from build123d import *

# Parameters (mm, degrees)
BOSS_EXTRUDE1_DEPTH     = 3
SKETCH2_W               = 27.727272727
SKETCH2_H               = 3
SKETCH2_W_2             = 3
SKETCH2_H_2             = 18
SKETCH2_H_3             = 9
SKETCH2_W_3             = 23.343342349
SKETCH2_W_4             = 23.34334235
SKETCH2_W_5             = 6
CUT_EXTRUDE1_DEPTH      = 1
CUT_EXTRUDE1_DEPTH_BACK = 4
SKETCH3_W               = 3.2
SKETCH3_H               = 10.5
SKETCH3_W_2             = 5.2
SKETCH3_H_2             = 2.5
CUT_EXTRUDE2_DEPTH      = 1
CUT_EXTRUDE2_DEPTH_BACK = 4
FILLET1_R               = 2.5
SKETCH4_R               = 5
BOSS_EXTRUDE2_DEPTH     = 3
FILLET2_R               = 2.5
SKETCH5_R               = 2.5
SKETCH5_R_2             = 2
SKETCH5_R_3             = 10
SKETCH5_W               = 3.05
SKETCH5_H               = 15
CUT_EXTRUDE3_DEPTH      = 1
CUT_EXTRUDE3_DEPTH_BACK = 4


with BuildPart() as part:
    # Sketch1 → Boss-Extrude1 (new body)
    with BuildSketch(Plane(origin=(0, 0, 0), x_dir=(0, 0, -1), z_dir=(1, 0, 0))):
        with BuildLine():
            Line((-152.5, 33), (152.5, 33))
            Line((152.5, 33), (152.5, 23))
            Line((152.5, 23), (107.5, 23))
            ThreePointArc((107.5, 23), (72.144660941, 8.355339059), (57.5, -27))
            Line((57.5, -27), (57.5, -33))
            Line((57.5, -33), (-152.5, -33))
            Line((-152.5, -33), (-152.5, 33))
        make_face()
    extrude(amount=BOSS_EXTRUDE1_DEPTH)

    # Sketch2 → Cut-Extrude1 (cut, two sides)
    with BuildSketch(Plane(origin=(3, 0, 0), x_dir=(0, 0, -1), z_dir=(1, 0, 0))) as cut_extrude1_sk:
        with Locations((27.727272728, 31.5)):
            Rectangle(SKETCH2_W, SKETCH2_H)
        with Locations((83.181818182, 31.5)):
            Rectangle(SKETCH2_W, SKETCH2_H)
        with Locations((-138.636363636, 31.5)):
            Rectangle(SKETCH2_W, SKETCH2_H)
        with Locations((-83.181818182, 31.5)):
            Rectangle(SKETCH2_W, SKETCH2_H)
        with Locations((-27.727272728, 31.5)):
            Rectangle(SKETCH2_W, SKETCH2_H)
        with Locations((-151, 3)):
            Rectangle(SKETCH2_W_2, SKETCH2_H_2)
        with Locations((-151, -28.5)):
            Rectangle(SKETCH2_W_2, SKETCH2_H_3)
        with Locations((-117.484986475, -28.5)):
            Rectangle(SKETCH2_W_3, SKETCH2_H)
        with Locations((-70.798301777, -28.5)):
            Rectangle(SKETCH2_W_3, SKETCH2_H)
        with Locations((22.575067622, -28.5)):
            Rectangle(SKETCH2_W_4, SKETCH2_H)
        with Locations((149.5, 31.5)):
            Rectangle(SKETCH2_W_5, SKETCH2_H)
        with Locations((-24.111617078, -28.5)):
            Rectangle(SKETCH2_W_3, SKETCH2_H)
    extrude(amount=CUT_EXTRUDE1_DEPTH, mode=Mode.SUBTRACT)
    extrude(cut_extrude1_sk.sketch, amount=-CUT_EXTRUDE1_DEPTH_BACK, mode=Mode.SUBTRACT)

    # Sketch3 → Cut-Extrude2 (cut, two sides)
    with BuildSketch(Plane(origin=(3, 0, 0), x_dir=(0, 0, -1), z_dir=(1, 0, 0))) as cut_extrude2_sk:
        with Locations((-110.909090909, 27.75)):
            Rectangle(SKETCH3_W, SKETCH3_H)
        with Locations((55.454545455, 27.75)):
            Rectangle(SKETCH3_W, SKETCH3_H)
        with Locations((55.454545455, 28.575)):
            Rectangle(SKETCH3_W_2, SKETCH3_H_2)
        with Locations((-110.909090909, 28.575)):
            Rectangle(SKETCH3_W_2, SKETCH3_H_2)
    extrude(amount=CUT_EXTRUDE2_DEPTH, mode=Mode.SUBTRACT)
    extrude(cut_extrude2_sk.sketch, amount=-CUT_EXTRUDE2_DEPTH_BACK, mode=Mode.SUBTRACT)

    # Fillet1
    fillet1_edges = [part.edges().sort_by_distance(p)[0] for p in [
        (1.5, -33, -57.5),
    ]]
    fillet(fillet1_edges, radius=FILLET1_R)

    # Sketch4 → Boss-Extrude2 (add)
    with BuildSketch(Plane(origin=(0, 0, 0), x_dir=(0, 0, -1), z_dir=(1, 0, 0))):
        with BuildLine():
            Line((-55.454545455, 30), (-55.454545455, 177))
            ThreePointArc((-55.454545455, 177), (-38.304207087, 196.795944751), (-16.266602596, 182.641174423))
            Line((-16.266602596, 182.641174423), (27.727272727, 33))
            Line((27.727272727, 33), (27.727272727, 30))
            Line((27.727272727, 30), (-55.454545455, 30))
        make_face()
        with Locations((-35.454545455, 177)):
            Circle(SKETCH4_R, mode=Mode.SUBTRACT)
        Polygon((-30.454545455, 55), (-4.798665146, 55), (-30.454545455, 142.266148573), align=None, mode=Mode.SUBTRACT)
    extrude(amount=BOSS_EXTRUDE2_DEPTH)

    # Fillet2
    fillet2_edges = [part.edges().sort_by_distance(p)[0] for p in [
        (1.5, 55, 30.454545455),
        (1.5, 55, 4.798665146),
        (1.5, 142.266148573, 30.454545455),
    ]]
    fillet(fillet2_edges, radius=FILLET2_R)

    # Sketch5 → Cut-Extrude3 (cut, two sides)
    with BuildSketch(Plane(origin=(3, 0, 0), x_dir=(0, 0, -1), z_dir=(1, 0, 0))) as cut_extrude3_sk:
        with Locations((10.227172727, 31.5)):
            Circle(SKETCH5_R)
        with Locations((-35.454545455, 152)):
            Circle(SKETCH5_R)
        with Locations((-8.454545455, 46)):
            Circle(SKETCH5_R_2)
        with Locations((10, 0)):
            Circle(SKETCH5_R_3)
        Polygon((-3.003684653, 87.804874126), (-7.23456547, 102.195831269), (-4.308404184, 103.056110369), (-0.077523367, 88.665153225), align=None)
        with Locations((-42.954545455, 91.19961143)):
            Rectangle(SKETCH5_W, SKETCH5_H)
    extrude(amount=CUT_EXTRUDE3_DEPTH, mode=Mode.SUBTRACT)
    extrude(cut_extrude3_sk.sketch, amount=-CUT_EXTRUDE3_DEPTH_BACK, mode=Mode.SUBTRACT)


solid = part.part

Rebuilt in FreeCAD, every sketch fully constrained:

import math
import FreeCAD as App
import Part
import Sketcher

V = App.Vector


def edges_at(feature, points):
    """Names of the edges that pass closest to the given points."""
    edges = feature.Shape.Edges
    near = lambda p: min(range(len(edges)), key=lambda i: edges[i].distToShape(Part.Vertex(*p))[0])
    return sorted({f"Edge{near(p) + 1}" for p in points})


def add_polygon(sketch, points):
    """Adds a closed chain of lines whose ends are joined by coincident constraints."""
    first, n = sketch.GeometryCount, len(points)
    for a, b in zip(points, points[1:] + points[:1]):
        sketch.addGeometry(Part.LineSegment(App.Vector(*a, 0), App.Vector(*b, 0)), False)
    for i in range(n):
        sketch.addConstraint(Sketcher.Constraint("Coincident", first + i, 2, first + (i + 1) % n, 1))

doc = App.newDocument("Part")
body = doc.addObject("PartDesign::Body", "Body")

# Sketch on YZ plane
sketch1 = body.newObject("Sketcher::SketchObject", "Sketch")
sketch1.AttachmentSupport = (doc.getObject("YZ_Plane"), [""])
sketch1.MapMode = "FlatFace"
sketch1.addGeometry([
    Part.LineSegment(V(33, -152, 0), V(33, 152, 0)),  # 0
    Part.LineSegment(V(33, 152, 0), V(-33, 152, 0)),  # 1
    Part.LineSegment(V(-33, 152, 0), V(-33, -58, 0)),  # 2
    Part.LineSegment(V(-33, -58, 0), V(-27, -58, 0)),  # 3
    Part.ArcOfCircle(Part.Circle(V(-27, -108, 0), V(0, 0, 1), 50), math.radians(0), math.radians(90)),  # 4
    Part.LineSegment(V(23, -108, 0), V(23, -152, 0)),  # 5
    Part.LineSegment(V(23, -152, 0), V(33, -152, 0)),  # 6
], False)
sketch1.addConstraint([
    Sketcher.Constraint("Coincident", 0, 2, 1, 1),
    Sketcher.Constraint("Coincident", 1, 2, 2, 1),
    Sketcher.Constraint("Coincident", 2, 2, 3, 1),
    Sketcher.Constraint("Tangent", 3, 2, 4, 2),
    Sketcher.Constraint("Tangent", 4, 1, 5, 1),
    Sketcher.Constraint("Coincident", 5, 2, 6, 1),
    Sketcher.Constraint("Coincident", 6, 2, 0, 1),
    Sketcher.Constraint("Vertical", 0),
    Sketcher.Constraint("Horizontal", 1),
    Sketcher.Constraint("Vertical", 2),
    Sketcher.Constraint("Horizontal", 3),
    Sketcher.Constraint("Vertical", 5),
    Sketcher.Constraint("Horizontal", 6),
    Sketcher.Constraint("Symmetric", 1, 2, 6, 2, -1, 1),
    Sketcher.Constraint("Radius", 4, 50.0),
    Sketcher.Constraint("DistanceX", 1, 2, 1, 1, 66.0),
    Sketcher.Constraint("DistanceX", 3, 1, 3, 2, 6.0),
    Sketcher.Constraint("DistanceY", 0, 1, 0, 2, 305.0),
    Sketcher.Constraint("DistanceY", 2, 2, 2, 1, 210.0),
])
pad1 = body.newObject("PartDesign::Pad", "Pad")
pad1.Profile = sketch1
pad1.Length = 3

# Sketch on YZ plane
sketch2 = body.newObject("Sketcher::SketchObject", "Sketch001")
sketch2.AttachmentSupport = (doc.getObject("YZ_Plane"), [""])
sketch2.MapMode = "FlatFace"
sketch2.AttachmentOffset = App.Placement(V(0, 0, 3), App.Rotation())
add_polygon(sketch2, [(33, -13.9), (30, -13.9), (30, -41.6), (33, -41.6)])  # lines 0-3
add_polygon(sketch2, [(33, -69.3), (30, -69.3), (30, -97), (33, -97)])  # lines 4-7
add_polygon(sketch2, [(33, 152.5), (30, 152.5), (30, 124.8), (33, 124.8)])  # lines 8-11
add_polygon(sketch2, [(33, 97), (30, 97), (30, 69.3), (33, 69.3)])  # lines 12-15
add_polygon(sketch2, [(33, 41.6), (30, 41.6), (30, 13.9), (33, 13.9)])  # lines 16-19
add_polygon(sketch2, [(12, 152.5), (-6, 152.5), (-6, 149.5), (12, 149.5)])  # lines 20-23
add_polygon(sketch2, [(-24, 152.5), (-33, 152.5), (-33, 149.5), (-24, 149.5)])  # lines 24-27
add_polygon(sketch2, [(-27, 129.2), (-30, 129.2), (-30, 105.8), (-27, 105.8)])  # lines 28-31
add_polygon(sketch2, [(-27, 82.5), (-30, 82.5), (-30, 59.1), (-27, 59.1)])  # lines 32-35
add_polygon(sketch2, [(-27, -10.9), (-30, -10.9), (-30, -34.2), (-27, -34.2)])  # lines 36-39
add_polygon(sketch2, [(33, -146.5), (30, -146.5), (30, -152.5), (33, -152.5)])  # lines 40-43
add_polygon(sketch2, [(-27, 35.8), (-30, 35.8), (-30, 12.4), (-27, 12.4)])  # lines 44-47
sketch2.addConstraint([
    Sketcher.Constraint("Horizontal", 0),
    Sketcher.Constraint("Vertical", 1),
    Sketcher.Constraint("Horizontal", 2),
    Sketcher.Constraint("Vertical", 3),
    Sketcher.Constraint("Horizontal", 4),
    Sketcher.Constraint("Vertical", 5),
    Sketcher.Constraint("Horizontal", 6),
    Sketcher.Constraint("Vertical", 7),
    Sketcher.Constraint("Horizontal", 8),
    Sketcher.Constraint("Vertical", 9),
    Sketcher.Constraint("Horizontal", 10),
    Sketcher.Constraint("Vertical", 11),
    Sketcher.Constraint("Horizontal", 12),
    Sketcher.Constraint("Vertical", 13),
    Sketcher.Constraint("Horizontal", 14),
    Sketcher.Constraint("Vertical", 15),
    Sketcher.Constraint("Horizontal", 16),
    Sketcher.Constraint("Vertical", 17),
    Sketcher.Constraint("Horizontal", 18),
    Sketcher.Constraint("Vertical", 19),
    Sketcher.Constraint("Horizontal", 20),
    Sketcher.Constraint("Vertical", 21),
    Sketcher.Constraint("Horizontal", 22),
    Sketcher.Constraint("Vertical", 23),
    Sketcher.Constraint("Horizontal", 24),
    Sketcher.Constraint("Vertical", 25),
    Sketcher.Constraint("Horizontal", 26),
    Sketcher.Constraint("Vertical", 27),
    Sketcher.Constraint("Horizontal", 28),
    Sketcher.Constraint("Vertical", 29),
    Sketcher.Constraint("Horizontal", 30),
    Sketcher.Constraint("Vertical", 31),
    Sketcher.Constraint("Horizontal", 32),
    Sketcher.Constraint("Vertical", 33),
    Sketcher.Constraint("Horizontal", 34),
    Sketcher.Constraint("Vertical", 35),
    Sketcher.Constraint("Horizontal", 36),
    Sketcher.Constraint("Vertical", 37),
    Sketcher.Constraint("Horizontal", 38),
    Sketcher.Constraint("Vertical", 39),
    Sketcher.Constraint("Horizontal", 40),
    Sketcher.Constraint("Vertical", 41),
    Sketcher.Constraint("Horizontal", 42),
    Sketcher.Constraint("Vertical", 43),
    Sketcher.Constraint("Horizontal", 44),
    Sketcher.Constraint("Vertical", 45),
    Sketcher.Constraint("Horizontal", 46),
    Sketcher.Constraint("Vertical", 47),
    Sketcher.Constraint("Symmetric", 24, 2, 42, 2, -1, 1),
    Sketcher.Constraint("Symmetric", 11, 2, 24, 2, -2),
    Sketcher.Constraint("Symmetric", 5, 2, 12, 2, -1),
    Sketcher.Constraint("Symmetric", 7, 2, 14, 2, -1),
    Sketcher.Constraint("Symmetric", 1, 2, 16, 2, -1),
    Sketcher.Constraint("Symmetric", 3, 2, 18, 2, -1),
    Sketcher.Constraint("Horizontal", 11, 2, 20, 2),
    Sketcher.Constraint("Horizontal", 22, 2, 25, 2),
    Sketcher.Constraint("Vertical", 1, 2, 4, 2),
    Sketcher.Constraint("Vertical", 3, 2, 6, 2),
    Sketcher.Constraint("Vertical", 5, 2, 8, 2),
    Sketcher.Constraint("Vertical", 7, 2, 10, 2),
    Sketcher.Constraint("Vertical", 29, 2, 32, 2),
    Sketcher.Constraint("Vertical", 31, 2, 34, 2),
    Sketcher.Constraint("Vertical", 33, 2, 36, 2),
    Sketcher.Constraint("Vertical", 35, 2, 38, 2),
    Sketcher.Constraint("Vertical", 17, 2, 40, 2),
    Sketcher.Constraint("Vertical", 37, 2, 44, 2),
    Sketcher.Constraint("Vertical", 39, 2, 46, 2),
    Sketcher.Constraint("Equal", 18, 28),
    Sketcher.Constraint("Equal", 3, 5),
    Sketcher.Constraint("Equal", 7, 9),
    Sketcher.Constraint("Equal", 46, 21),
    Sketcher.Constraint("Equal", 31, 33),
    Sketcher.Constraint("Equal", 35, 37),
    Sketcher.Constraint("Equal", 39, 45),
    Sketcher.Constraint("DistanceX", 0, 2, 0, 1, 3.0),
    Sketcher.Constraint("DistanceX", 20, 2, 20, 1, 18.0),
    Sketcher.Constraint("DistanceX", 24, 2, 24, 1, 9.0),
    Sketcher.Constraint("DistanceY", 41, 2, 41, 1, 6.0),
    Sketcher.Constraint("DistanceX", -1, 1, 0, 2, 30.0),
    Sketcher.Constraint("DistanceX", 20, 2, -1, 1, 6.0),
    Sketcher.Constraint("DistanceX", 28, 2, -1, 1, 30.0),
    Sketcher.Constraint("DistanceY", -1, 1, 8, 2, 152.5),
    Sketcher.Constraint("DistanceY", 1, 2, 1, 1, 27.727273),
    Sketcher.Constraint("DistanceY", 29, 2, 29, 1, 23.343342),
    Sketcher.Constraint("DistanceY", 1, 2, -1, 1, 41.590909),
    Sketcher.Constraint("DistanceY", 4, 2, -1, 1, 69.318182),
    Sketcher.Constraint("DistanceY", -1, 1, 33, 2, 59.126631),
    Sketcher.Constraint("DistanceY", 37, 2, -1, 1, 34.246739),
    Sketcher.Constraint("DistanceY", -1, 1, 44, 2, 35.783288),
    Sketcher.Constraint("DistanceY", -1, 1, 28, 2, 129.156658),
])
pocket1 = body.newObject("PartDesign::Pocket", "Pocket")
pocket1.Profile = sketch2
pocket1.Type = "ThroughAll"
pocket1.Midplane = True

# Sketch on YZ plane
sketch3 = body.newObject("Sketcher::SketchObject", "Sketch002")
sketch3.AttachmentSupport = (doc.getObject("YZ_Plane"), [""])
sketch3.MapMode = "FlatFace"
sketch3.AttachmentOffset = App.Placement(V(0, 0, 3), App.Rotation())
add_polygon(sketch3, [(27.3, 112.5), (22.5, 112.5), (22.5, 109.3), (27.3, 109.3), (27.3, 108.3), (29.8, 108.3), (29.8, 109.3), (33, 109.3), (33, 112.5), (29.8, 112.5), (29.8, 113.5), (27.3, 113.5)])  # lines 0-11
add_polygon(sketch3, [(27.3, -53.9), (22.5, -53.9), (22.5, -57.1), (27.3, -57.1), (27.3, -58.1), (29.8, -58.1), (29.8, -57.1), (33, -57.1), (33, -53.9), (29.8, -53.9), (29.8, -52.9), (27.3, -52.9)])  # lines 12-23
sketch3.addConstraint([
    Sketcher.Constraint("Horizontal", 0),
    Sketcher.Constraint("Vertical", 1),
    Sketcher.Constraint("Horizontal", 2),
    Sketcher.Constraint("Vertical", 3),
    Sketcher.Constraint("Horizontal", 4),
    Sketcher.Constraint("Vertical", 5),
    Sketcher.Constraint("Horizontal", 6),
    Sketcher.Constraint("Vertical", 7),
    Sketcher.Constraint("Horizontal", 8),
    Sketcher.Constraint("Vertical", 9),
    Sketcher.Constraint("Horizontal", 10),
    Sketcher.Constraint("Vertical", 11),
    Sketcher.Constraint("Horizontal", 12),
    Sketcher.Constraint("Vertical", 13),
    Sketcher.Constraint("Horizontal", 14),
    Sketcher.Constraint("Vertical", 15),
    Sketcher.Constraint("Horizontal", 16),
    Sketcher.Constraint("Vertical", 17),
    Sketcher.Constraint("Horizontal", 18),
    Sketcher.Constraint("Vertical", 19),
    Sketcher.Constraint("Horizontal", 20),
    Sketcher.Constraint("Vertical", 21),
    Sketcher.Constraint("Horizontal", 22),
    Sketcher.Constraint("Vertical", 23),
    Sketcher.Constraint("Horizontal", 2, 2, 5, 2),
    Sketcher.Constraint("Horizontal", 0, 2, 7, 2),
    Sketcher.Constraint("Horizontal", 14, 2, 17, 2),
    Sketcher.Constraint("Horizontal", 12, 2, 19, 2),
    Sketcher.Constraint("Vertical", 5, 2, 8, 2),
    Sketcher.Constraint("Vertical", 3, 2, 10, 2),
    Sketcher.Constraint("Vertical", 1, 2, 12, 2),
    Sketcher.Constraint("Vertical", 11, 2, 14, 2),
    Sketcher.Constraint("Vertical", 9, 2, 16, 2),
    Sketcher.Constraint("Vertical", 7, 2, 18, 2),
    Sketcher.Constraint("Vertical", 17, 2, 20, 2),
    Sketcher.Constraint("Vertical", 15, 2, 22, 2),
    Sketcher.Constraint("Equal", 5, 9),
    Sketcher.Constraint("Equal", 7, 13),
    Sketcher.Constraint("Equal", 11, 15),
    Sketcher.Constraint("Equal", 17, 21),
    Sketcher.Constraint("DistanceY", 3, 2, 3, 1, 1.0),
    Sketcher.Constraint("DistanceX", 4, 1, 4, 2, 2.5),
    Sketcher.Constraint("DistanceY", 1, 2, 1, 1, 3.2),
    Sketcher.Constraint("DistanceX", -1, 1, 6, 2, 33.0),
    Sketcher.Constraint("DistanceX", -1, 1, 0, 2, 22.5),
    Sketcher.Constraint("DistanceX", 0, 2, 0, 1, 4.825),
    Sketcher.Constraint("DistanceY", -1, 1, 0, 2, 112.509091),
    Sketcher.Constraint("DistanceY", 12, 2, -1, 1, 53.854545),
])
pocket2 = body.newObject("PartDesign::Pocket", "Pocket001")
pocket2.Profile = sketch3
pocket2.Type = "ThroughAll"
pocket2.Midplane = True
doc.recompute()

fillet = body.newObject("PartDesign::Fillet", "Fillet")
fillet.Base = (pocket2, edges_at(pocket2, [(1.5, -33, -57.5)]))
fillet.Radius = 2.5

# Sketch on YZ plane
sketch4 = body.newObject("Sketcher::SketchObject", "Sketch003")
sketch4.AttachmentSupport = (doc.getObject("YZ_Plane"), [""])
sketch4.MapMode = "FlatFace"
sketch4.addGeometry(Part.LineSegment(V(177, 55.5, 0), V(30, 55.5, 0)), False)  # 0
sketch4.addGeometry(Part.LineSegment(V(30, 55.5, 0), V(30, -27.7, 0)), False)  # 1
sketch4.addGeometry(Part.LineSegment(V(30, -27.7, 0), V(33, -27.7, 0)), False)  # 2
sketch4.addGeometry(Part.LineSegment(V(33, -27.7, 0), V(182.6, 16.3, 0)), False)  # 3
sketch4.addGeometry(Part.ArcOfCircle(Part.Circle(V(177, 35.5, 0), V(0, 0, 1), 20), math.radians(-74), math.radians(90)), False)  # 4
add_polygon(sketch4, [(55, 30.5), (142.3, 30.5), (55, 4.8)])  # lines 5-7
sketch4.addGeometry(Part.Circle(V(177, 35.5, 0), V(0, 0, 1), 5), False)  # 8
sketch4.addConstraint([
    Sketcher.Constraint("Coincident", 0, 2, 1, 1),
    Sketcher.Constraint("Coincident", 1, 2, 2, 1),
    Sketcher.Constraint("Coincident", 2, 2, 3, 1),
    Sketcher.Constraint("Tangent", 3, 2, 4, 1),
    Sketcher.Constraint("Tangent", 4, 2, 0, 1),
    Sketcher.Constraint("Horizontal", 0),
    Sketcher.Constraint("Vertical", 1),
    Sketcher.Constraint("Horizontal", 2),
    Sketcher.Constraint("Horizontal", 5),
    Sketcher.Constraint("Vertical", 7),
    Sketcher.Constraint("Coincident", 8, 3, 4, 3),
    Sketcher.Constraint("Parallel", 3, 6),
    Sketcher.Constraint("Diameter", 8, 10.0),
    Sketcher.Constraint("Radius", 4, 20.0),
    Sketcher.Constraint("DistanceX", 0, 2, 0, 1, 147.0),
    Sketcher.Constraint("DistanceX", 2, 1, 2, 2, 3.0),
    Sketcher.Constraint("DistanceX", -1, 1, 4, 3, 177.0),
    Sketcher.Constraint("DistanceX", -1, 1, 6, 2, 55.0),
    Sketcher.Constraint("DistanceY", 5, 2, 4, 3, 5.0),
    Sketcher.Constraint("DistanceX", 5, 1, 5, 2, 87.266149),
    Sketcher.Constraint("DistanceY", 1, 2, 1, 1, 83.181818),
    Sketcher.Constraint("DistanceY", -1, 1, 4, 3, 35.454545),
])
pad2 = body.newObject("PartDesign::Pad", "Pad001")
pad2.Profile = sketch4
pad2.Length = 3
doc.recompute()

fillet2 = body.newObject("PartDesign::Fillet", "Fillet001")
fillet2.Base = (pad2, edges_at(pad2, [(1.5, 55, 30.455), (1.5, 55, 4.799), (1.5, 142.266, 30.455)]))
fillet2.Radius = 2.5

# Sketch on YZ plane
sketch5 = body.newObject("Sketcher::SketchObject", "Sketch004")
sketch5.AttachmentSupport = (doc.getObject("YZ_Plane"), [""])
sketch5.MapMode = "FlatFace"
sketch5.AttachmentOffset = App.Placement(V(0, 0, 3), App.Rotation())
sketch5.addGeometry(Part.Circle(V(31.5, -10.2, 0), V(0, 0, 1), 2.5), False)  # 0
sketch5.addGeometry(Part.Circle(V(152, 35.5, 0), V(0, 0, 1), 2.5), False)  # 1
sketch5.addGeometry(Part.Circle(V(46, 8.5, 0), V(0, 0, 1), 2), False)  # 2
sketch5.addGeometry(Part.Circle(V(0, -10, 0), V(0, 0, 1), 10), False)  # 3
add_polygon(sketch5, [(102.2, 7.2), (87.8, 3), (88.7, 0.1), (103.1, 4.3)])  # lines 4-7
add_polygon(sketch5, [(98.7, 44.5), (83.7, 44.5), (83.7, 41.4), (98.7, 41.4)])  # lines 8-11
sketch5.addConstraint([
    Sketcher.Constraint("Horizontal", 8),
    Sketcher.Constraint("Vertical", 9),
    Sketcher.Constraint("Horizontal", 10),
    Sketcher.Constraint("Vertical", 11),
    Sketcher.Constraint("Equal", 0, 1),
    Sketcher.Constraint("PointOnObject", 3, 3, -2),
    Sketcher.Constraint("Perpendicular", 4, 5),
    Sketcher.Constraint("Perpendicular", 5, 6),
    Sketcher.Constraint("Perpendicular", 6, 7),
    Sketcher.Constraint("Diameter", 0, 5.0),
    Sketcher.Constraint("Diameter", 2, 4.0),
    Sketcher.Constraint("Diameter", 3, 20.0),
    Sketcher.Constraint("DistanceX", 8, 2, 8, 1, 15.0),
    Sketcher.Constraint("Distance", 4, 15.0),
    Sketcher.Constraint("DistanceX", -1, 1, 1, 3, 152.0),
    Sketcher.Constraint("DistanceX", -1, 1, 2, 3, 46.0),
    Sketcher.Constraint("DistanceY", 3, 3, -1, 1, 10.0),
    Sketcher.Constraint("DistanceY", 2, 3, 1, 3, 27.0),
    Sketcher.Constraint("DistanceY", 9, 2, 9, 1, 3.05),
    Sketcher.Constraint("DistanceX", -1, 1, 0, 3, 31.5),
    Sketcher.Constraint("Distance", 5, 3.05),
    Sketcher.Constraint("DistanceY", 2, 3, 8, 2, 36.025),
    Sketcher.Constraint("DistanceX", 8, 2, 6, 2, 19.356499),
    Sketcher.Constraint("DistanceX", -1, 1, 6, 2, 103.05611),
    Sketcher.Constraint("DistanceX", -1, 1, 7, 2, 102.195831),
    Sketcher.Constraint("DistanceY", 0, 3, 1, 3, 45.681718),
    Sketcher.Constraint("DistanceY", 4, 2, 2, 3, 5.450861),
    Sketcher.Constraint("DistanceY", 0, 3, -1, 1, 10.227173),
])
pocket3 = body.newObject("PartDesign::Pocket", "Pocket002")
pocket3.Profile = sketch5
pocket3.Type = "ThroughAll"
pocket3.Midplane = True

doc.recompute()
